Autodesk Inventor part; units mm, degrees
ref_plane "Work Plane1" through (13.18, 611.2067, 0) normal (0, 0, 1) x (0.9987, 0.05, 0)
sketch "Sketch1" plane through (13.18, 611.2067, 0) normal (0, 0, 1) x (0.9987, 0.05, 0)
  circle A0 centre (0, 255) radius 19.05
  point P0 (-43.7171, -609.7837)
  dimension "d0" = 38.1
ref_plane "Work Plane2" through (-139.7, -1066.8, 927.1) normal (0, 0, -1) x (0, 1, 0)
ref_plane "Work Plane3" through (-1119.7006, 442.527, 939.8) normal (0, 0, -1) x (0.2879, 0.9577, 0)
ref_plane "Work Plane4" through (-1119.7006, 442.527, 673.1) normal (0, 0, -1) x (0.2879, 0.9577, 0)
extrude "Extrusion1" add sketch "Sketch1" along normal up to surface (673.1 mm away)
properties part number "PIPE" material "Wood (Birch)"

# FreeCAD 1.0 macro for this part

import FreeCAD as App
import Part
import Sketcher
Q = App.Units.Quantity

doc = App.newDocument("Part")
params = doc.addObject("Spreadsheet::Sheet", "Params")
for row, (alias, value) in enumerate([
    ("sketch1_diameter", "1.5 in"),
    ("pad1_length", "26.5 in"),
], start=1):
    params.set(f"A{row}", alias)
    params.set(f"B{row}", "=" + value)
    params.setAlias(f"B{row}", alias)

body = doc.addObject("PartDesign::Body", "Body")

sketch1 = body.newObject("Sketcher::SketchObject", "Sketch")
sketch1.AttachmentSupport = (doc.getObject("XY_Plane"), [""])
sketch1.MapMode = "FlatFace"
sketch1.addGeometry(Part.Circle(App.Vector(0.429373, 865.887719, 0), App.Vector(0, 0, 1), 19.05), False)
sketch1.addConstraint([
    Sketcher.Constraint("Diameter", 0, Q("1.5 in")),
    Sketcher.Constraint("DistanceX", -1, 1, 0, 3, Q("0.0169 in")),
    Sketcher.Constraint("DistanceY", -1, 1, 0, 3, Q("865.8877 mm")),
])
sketch1.setExpression("Constraints[0]", "Params.sketch1_diameter")
pad1 = body.newObject("PartDesign::Pad", "Pad")
pad1.Profile = sketch1
pad1.setExpression("Length", "Params.pad1_length")

doc.recompute()
